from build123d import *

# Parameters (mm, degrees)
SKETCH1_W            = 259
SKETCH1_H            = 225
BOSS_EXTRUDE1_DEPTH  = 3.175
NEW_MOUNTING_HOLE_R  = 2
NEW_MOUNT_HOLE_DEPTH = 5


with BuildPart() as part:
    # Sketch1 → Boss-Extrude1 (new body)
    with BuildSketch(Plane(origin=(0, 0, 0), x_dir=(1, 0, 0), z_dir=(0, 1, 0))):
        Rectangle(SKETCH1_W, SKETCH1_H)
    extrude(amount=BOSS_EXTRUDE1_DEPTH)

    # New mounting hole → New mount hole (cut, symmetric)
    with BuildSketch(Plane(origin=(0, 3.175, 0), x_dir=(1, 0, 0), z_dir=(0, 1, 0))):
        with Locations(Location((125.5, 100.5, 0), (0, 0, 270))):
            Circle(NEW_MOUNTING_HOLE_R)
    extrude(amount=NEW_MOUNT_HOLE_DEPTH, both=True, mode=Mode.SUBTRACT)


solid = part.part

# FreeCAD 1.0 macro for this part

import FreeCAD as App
import Part
import Sketcher
from FreeCAD import Vector
Q = App.Units.Quantity


def add_polygon(sketch, points):
    """Adds a closed chain of lines whose ends are joined by coincident constraints."""
    first, n = sketch.GeometryCount, len(points)
    for a, b in zip(points, points[1:] + points[:1]):
        sketch.addGeometry(Part.LineSegment(App.Vector(*a, 0), App.Vector(*b, 0)), False)
    for i in range(n):
        sketch.addConstraint(Sketcher.Constraint("Coincident", first + i, 2, first + (i + 1) % n, 1))

doc = App.newDocument("Part")
body = doc.addObject("PartDesign::Body", "Body")

sketch1 = doc.addObject("Sketcher::SketchObject", "Sketch")
body.addObject(sketch1)
sketch1.AttachmentSupport = (doc.XZ_Plane, [""])
sketch1.MapMode = "FlatFace"
add_polygon(sketch1, [(-130, -112), (-130, 112), (130, 112), (130, -112)])
sketch1.addConstraint([
    Sketcher.Constraint("Vertical", 0),
    Sketcher.Constraint("Horizontal", 1),
    Sketcher.Constraint("Vertical", 2),
    Sketcher.Constraint("Horizontal", 3),
    Sketcher.Constraint("Symmetric", 0, 2, 2, 2, -1, 1),
    Sketcher.Constraint("DistanceX", 1, 1, 1, 2, Q("259 mm")),
    Sketcher.Constraint("DistanceY", 0, 1, 0, 2, Q("225 mm")),
])
pad1 = doc.addObject("PartDesign::Pad", "Pad")
body.addObject(pad1)
pad1.Profile = sketch1
pad1.Length = 3.175
pad1.Reversed = True

sketch2 = doc.addObject("Sketcher::SketchObject", "Sketch001")
body.addObject(sketch2)
sketch2.AttachmentSupport = (doc.XZ_Plane, [""])
sketch2.MapMode = "FlatFace"
sketch2.AttachmentOffset = App.Placement(Vector(0, 0, -3.175), App.Rotation())
sketch2.addGeometry(Part.Circle(Vector(125.5, -100.5, 0), Vector(0, 0, 1), 2), False)
sketch2.addConstraint([
    Sketcher.Constraint("Diameter", 0, Q("4 mm")),
    Sketcher.Constraint("DistanceX", -1, 1, 0, 3, Q("125.5 mm")),
    Sketcher.Constraint("DistanceY", 0, 3, -1, 1, Q("100.5 mm")),
])
pocket1 = doc.addObject("PartDesign::Pocket", "Pocket")
body.addObject(pocket1)
pocket1.Profile = sketch2
pocket1.Length = 10
pocket1.Midplane = True

doc.recompute()
